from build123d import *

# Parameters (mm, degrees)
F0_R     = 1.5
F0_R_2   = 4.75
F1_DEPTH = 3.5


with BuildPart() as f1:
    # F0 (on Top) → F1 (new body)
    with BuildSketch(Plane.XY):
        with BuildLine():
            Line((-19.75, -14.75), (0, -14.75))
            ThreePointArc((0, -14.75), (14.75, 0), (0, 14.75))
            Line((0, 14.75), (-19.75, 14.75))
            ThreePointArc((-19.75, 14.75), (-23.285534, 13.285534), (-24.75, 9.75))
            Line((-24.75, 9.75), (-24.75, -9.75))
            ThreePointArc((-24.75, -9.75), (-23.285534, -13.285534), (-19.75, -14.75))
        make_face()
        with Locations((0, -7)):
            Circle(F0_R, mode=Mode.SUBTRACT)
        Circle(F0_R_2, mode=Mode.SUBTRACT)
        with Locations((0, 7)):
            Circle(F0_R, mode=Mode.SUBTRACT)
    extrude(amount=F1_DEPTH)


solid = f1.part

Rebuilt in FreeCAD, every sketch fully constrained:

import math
import FreeCAD as App
import Part
import Sketcher

doc = App.newDocument("Part")
body = doc.addObject("PartDesign::Body", "Body")

# Sketch on XY plane
sketch1 = body.newObject("Sketcher::SketchObject", "Sketch")
sketch1.AttachmentSupport = (doc.getObject("XY_Plane"), [""])
sketch1.MapMode = "FlatFace"
sketch1.addGeometry([
    Part.LineSegment(App.Vector(-19.8, -14.8, 0), App.Vector(0, -14.8, 0)),  # 0
    Part.ArcOfCircle(Part.Circle(App.Vector(0, 0, 0), App.Vector(0, 0, 1), 14.8), math.radians(-90), math.radians(90)),  # 1
    Part.LineSegment(App.Vector(0, 14.8, 0), App.Vector(-19.8, 14.8, 0)),  # 2
    Part.ArcOfCircle(Part.Circle(App.Vector(-19.8, 9.8, 0), App.Vector(0, 0, 1), 5), math.radians(90), math.radians(180)),  # 3
    Part.LineSegment(App.Vector(-24.8, 9.8, 0), App.Vector(-24.8, -9.8, 0)),  # 4
    Part.ArcOfCircle(Part.Circle(App.Vector(-19.8, -9.8, 0), App.Vector(0, 0, 1), 5), math.radians(180), math.radians(270)),  # 5
    Part.Circle(App.Vector(0, -7, 0), App.Vector(0, 0, 1), 1.5),  # 6
    Part.Circle(App.Vector(0, 0, 0), App.Vector(0, 0, 1), 4.8),  # 7
    Part.Circle(App.Vector(0, 7, 0), App.Vector(0, 0, 1), 1.5),  # 8
], False)
sketch1.addConstraint([
    Sketcher.Constraint("Tangent", 0, 2, 1, 1),
    Sketcher.Constraint("Tangent", 1, 2, 2, 1),
    Sketcher.Constraint("Tangent", 2, 2, 3, 1),
    Sketcher.Constraint("Tangent", 3, 2, 4, 1),
    Sketcher.Constraint("Tangent", 4, 2, 5, 1),
    Sketcher.Constraint("Tangent", 5, 2, 0, 1),
    Sketcher.Constraint("Horizontal", 0),
    Sketcher.Constraint("Horizontal", 2),
    Sketcher.Constraint("Vertical", 4),
    Sketcher.Constraint("Coincident", 1, 3, -1, 1),
    Sketcher.Constraint("Coincident", 7, 3, -1, 1),
    Sketcher.Constraint("Equal", 3, 5),
    Sketcher.Constraint("Equal", 6, 8),
    Sketcher.Constraint("Symmetric", 6, 3, 8, 3, -1, 1),
    Sketcher.Constraint("PointOnObject", 6, 3, -2),
    Sketcher.Constraint("Diameter", 6, 3.0),
    Sketcher.Constraint("Radius", 3, 5.0),
    Sketcher.Constraint("Diameter", 7, 9.5),
    Sketcher.Constraint("Radius", 1, 14.75),
    Sketcher.Constraint("DistanceY", 6, 3, -1, 1, 7.0),
    Sketcher.Constraint("DistanceX", 0, 1, 0, 2, 19.75),
])
pad1 = body.newObject("PartDesign::Pad", "Pad")
pad1.Profile = sketch1
pad1.Length = 3.5

doc.recompute()
